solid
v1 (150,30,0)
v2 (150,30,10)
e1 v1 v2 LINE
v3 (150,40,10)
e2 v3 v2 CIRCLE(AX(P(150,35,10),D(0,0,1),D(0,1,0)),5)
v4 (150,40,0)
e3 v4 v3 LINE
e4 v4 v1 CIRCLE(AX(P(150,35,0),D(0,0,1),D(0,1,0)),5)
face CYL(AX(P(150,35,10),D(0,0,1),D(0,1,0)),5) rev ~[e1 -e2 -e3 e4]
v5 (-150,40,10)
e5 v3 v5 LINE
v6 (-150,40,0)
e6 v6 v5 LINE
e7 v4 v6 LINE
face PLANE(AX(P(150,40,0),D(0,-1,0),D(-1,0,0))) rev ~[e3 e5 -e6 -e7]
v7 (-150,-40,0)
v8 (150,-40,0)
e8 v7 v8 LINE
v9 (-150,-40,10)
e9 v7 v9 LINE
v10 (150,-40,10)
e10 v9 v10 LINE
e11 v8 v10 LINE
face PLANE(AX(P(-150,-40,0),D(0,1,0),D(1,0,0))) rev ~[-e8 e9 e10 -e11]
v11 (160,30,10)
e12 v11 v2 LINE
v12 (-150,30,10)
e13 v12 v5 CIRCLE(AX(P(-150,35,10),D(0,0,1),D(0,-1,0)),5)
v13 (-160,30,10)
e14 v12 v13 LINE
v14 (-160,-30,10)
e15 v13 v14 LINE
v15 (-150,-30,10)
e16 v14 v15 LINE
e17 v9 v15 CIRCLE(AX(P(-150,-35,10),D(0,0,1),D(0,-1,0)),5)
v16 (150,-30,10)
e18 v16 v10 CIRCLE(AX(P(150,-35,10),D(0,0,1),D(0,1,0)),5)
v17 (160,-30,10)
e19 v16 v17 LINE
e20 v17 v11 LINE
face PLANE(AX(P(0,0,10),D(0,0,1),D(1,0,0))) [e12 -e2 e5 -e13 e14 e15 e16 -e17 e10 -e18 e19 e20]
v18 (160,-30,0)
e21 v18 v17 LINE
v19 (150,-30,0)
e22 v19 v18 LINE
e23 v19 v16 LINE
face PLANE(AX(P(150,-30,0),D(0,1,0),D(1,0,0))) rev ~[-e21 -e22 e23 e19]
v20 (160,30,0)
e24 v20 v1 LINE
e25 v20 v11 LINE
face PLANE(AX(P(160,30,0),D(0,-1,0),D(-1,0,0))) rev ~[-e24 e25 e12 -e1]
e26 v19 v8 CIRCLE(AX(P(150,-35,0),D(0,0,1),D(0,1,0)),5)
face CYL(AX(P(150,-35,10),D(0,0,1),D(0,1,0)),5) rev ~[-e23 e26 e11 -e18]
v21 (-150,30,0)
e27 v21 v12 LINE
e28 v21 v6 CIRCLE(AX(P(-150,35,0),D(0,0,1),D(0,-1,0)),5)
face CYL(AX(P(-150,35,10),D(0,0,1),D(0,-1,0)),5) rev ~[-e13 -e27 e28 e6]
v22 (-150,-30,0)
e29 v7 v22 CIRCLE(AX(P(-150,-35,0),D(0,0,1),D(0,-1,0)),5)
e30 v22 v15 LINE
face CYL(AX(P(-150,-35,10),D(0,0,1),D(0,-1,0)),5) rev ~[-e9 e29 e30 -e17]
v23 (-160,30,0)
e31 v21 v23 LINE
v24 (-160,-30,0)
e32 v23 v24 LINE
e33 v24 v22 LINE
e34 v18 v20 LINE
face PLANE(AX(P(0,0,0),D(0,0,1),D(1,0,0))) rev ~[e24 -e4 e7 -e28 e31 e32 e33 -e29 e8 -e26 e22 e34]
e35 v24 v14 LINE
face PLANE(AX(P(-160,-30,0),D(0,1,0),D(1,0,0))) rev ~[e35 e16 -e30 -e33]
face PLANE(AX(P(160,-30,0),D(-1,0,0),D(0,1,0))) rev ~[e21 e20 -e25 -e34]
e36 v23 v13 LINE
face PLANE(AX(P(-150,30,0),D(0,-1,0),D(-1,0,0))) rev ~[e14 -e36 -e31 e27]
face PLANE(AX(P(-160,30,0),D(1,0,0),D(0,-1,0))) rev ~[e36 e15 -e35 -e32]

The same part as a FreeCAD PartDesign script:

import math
import FreeCAD as App
import Part
import Sketcher
from FreeCAD import Vector
Q = App.Units.Quantity


def add_polygon(sketch, points):
    """Adds a closed chain of lines whose ends are joined by coincident constraints."""
    first, n = sketch.GeometryCount, len(points)
    for a, b in zip(points, points[1:] + points[:1]):
        sketch.addGeometry(Part.LineSegment(App.Vector(*a, 0), App.Vector(*b, 0)), False)
    for i in range(n):
        sketch.addConstraint(Sketcher.Constraint("Coincident", first + i, 2, first + (i + 1) % n, 1))

doc = App.newDocument("Part")
body = doc.addObject("PartDesign::Body", "Body")

# Sketch on XY plane
sketch1 = body.newObject("Sketcher::SketchObject", "Sketch")
sketch1.AttachmentSupport = (doc.getObject("XY_Plane"), [""])
sketch1.MapMode = "FlatFace"
add_polygon(sketch1, [(-150, -40), (150, -40), (150, -30), (160, -30), (160, 30), (150, 30), (150, 40), (-150, 40), (-150, 30), (-160, 30), (-160, -30), (-150, -30)])  # lines 0-11
sketch1.addConstraint([
    Sketcher.Constraint("Horizontal", 0),
    Sketcher.Constraint("Vertical", 1),
    Sketcher.Constraint("Horizontal", 2),
    Sketcher.Constraint("Vertical", 3),
    Sketcher.Constraint("Horizontal", 4),
    Sketcher.Constraint("Vertical", 5),
    Sketcher.Constraint("Horizontal", 6),
    Sketcher.Constraint("Vertical", 7),
    Sketcher.Constraint("Horizontal", 8),
    Sketcher.Constraint("Vertical", 9),
    Sketcher.Constraint("Horizontal", 10),
    Sketcher.Constraint("Vertical", 11),
    Sketcher.Constraint("Symmetric", 0, 2, 6, 2, -1, 1),
    Sketcher.Constraint("Symmetric", 2, 2, 8, 2, -1, 1),
    Sketcher.Constraint("Symmetric", 4, 2, 10, 2, -1, 1),
    Sketcher.Constraint("Symmetric", 4, 2, 7, 2, -2),
    Sketcher.Constraint("Equal", 10, 1),
    Sketcher.Constraint("DistanceX", 0, 1, 0, 2, Q("300 mm")),
    Sketcher.Constraint("DistanceX", 2, 1, 2, 2, Q("10 mm")),
    Sketcher.Constraint("DistanceY", 3, 1, 3, 2, Q("60 mm")),
])
pad1 = body.newObject("PartDesign::Pad", "Pad")
pad1.Profile = sketch1
pad1.Length = 10

# Sketch on XY plane
sketch2 = body.newObject("Sketcher::SketchObject", "Sketch001")
sketch2.AttachmentSupport = (doc.getObject("XY_Plane"), [""])
sketch2.MapMode = "FlatFace"
sketch2.AttachmentOffset = App.Placement(Vector(0, 0, 10), App.Rotation())
sketch2.addGeometry([
    Part.ArcOfCircle(Part.Circle(Vector(-150, -35, 0), Vector(0, 0, 1), 5), math.radians(-90), math.radians(90)),  # 0
    Part.LineSegment(Vector(-150, -30, 0), Vector(-150, -40, 0)),  # 1
    Part.LineSegment(Vector(-150, 40, 0), Vector(-150, 30, 0)),  # 2
    Part.ArcOfCircle(Part.Circle(Vector(-150, 35, 0), Vector(0, 0, 1), 5), math.radians(-90), math.radians(90)),  # 3
    Part.LineSegment(Vector(150, 30, 0), Vector(150, 40, 0)),  # 4
    Part.ArcOfCircle(Part.Circle(Vector(150, 35, 0), Vector(0, 0, 1), 5), math.radians(90), math.radians(270)),  # 5
    Part.ArcOfCircle(Part.Circle(Vector(150, -35, 0), Vector(0, 0, 1), 5), math.radians(90), math.radians(270)),  # 6
    Part.LineSegment(Vector(150, -40, 0), Vector(150, -30, 0)),  # 7
], False)
sketch2.addConstraint([
    Sketcher.Constraint("Coincident", 0, 1, 1, 2),
    Sketcher.Constraint("Coincident", 1, 1, 0, 2),
    Sketcher.Constraint("Coincident", 2, 1, 3, 2),
    Sketcher.Constraint("Coincident", 3, 1, 2, 2),
    Sketcher.Constraint("Coincident", 4, 1, 5, 2),
    Sketcher.Constraint("Coincident", 5, 1, 4, 2),
    Sketcher.Constraint("Coincident", 6, 1, 7, 2),
    Sketcher.Constraint("Coincident", 7, 1, 6, 2),
    Sketcher.Constraint("Vertical", 1),
    Sketcher.Constraint("Vertical", 2),
    Sketcher.Constraint("Vertical", 4),
    Sketcher.Constraint("Vertical", 7),
    Sketcher.Constraint("Equal", 0, 3),
    Sketcher.Constraint("Equal", 3, 5),
    Sketcher.Constraint("Equal", 5, 6),
    Sketcher.Constraint("Symmetric", 0, 3, 5, 3, -1, 1),
    Sketcher.Constraint("Symmetric", 3, 3, 6, 3, -1, 1),
    Sketcher.Constraint("Symmetric", 3, 3, 5, 3, -2),
    Sketcher.Constraint("Vertical", 3, 3, 0, 1),
    Sketcher.Constraint("Vertical", 1, 1, 2, 1),
    Sketcher.Constraint("Vertical", 6, 3, 4, 1),
    Sketcher.Constraint("Vertical", 5, 1, 6, 1),
    Sketcher.Constraint("Radius", 0, Q("5 mm")),
    Sketcher.Constraint("DistanceX", 0, 3, -1, 1, Q("150 mm")),
    Sketcher.Constraint("DistanceY", 0, 3, -1, 1, Q("35 mm")),
])
pocket1 = body.newObject("PartDesign::Pocket", "Pocket")
pocket1.Profile = sketch2
pocket1.Type = "ThroughAll"

doc.recompute()
